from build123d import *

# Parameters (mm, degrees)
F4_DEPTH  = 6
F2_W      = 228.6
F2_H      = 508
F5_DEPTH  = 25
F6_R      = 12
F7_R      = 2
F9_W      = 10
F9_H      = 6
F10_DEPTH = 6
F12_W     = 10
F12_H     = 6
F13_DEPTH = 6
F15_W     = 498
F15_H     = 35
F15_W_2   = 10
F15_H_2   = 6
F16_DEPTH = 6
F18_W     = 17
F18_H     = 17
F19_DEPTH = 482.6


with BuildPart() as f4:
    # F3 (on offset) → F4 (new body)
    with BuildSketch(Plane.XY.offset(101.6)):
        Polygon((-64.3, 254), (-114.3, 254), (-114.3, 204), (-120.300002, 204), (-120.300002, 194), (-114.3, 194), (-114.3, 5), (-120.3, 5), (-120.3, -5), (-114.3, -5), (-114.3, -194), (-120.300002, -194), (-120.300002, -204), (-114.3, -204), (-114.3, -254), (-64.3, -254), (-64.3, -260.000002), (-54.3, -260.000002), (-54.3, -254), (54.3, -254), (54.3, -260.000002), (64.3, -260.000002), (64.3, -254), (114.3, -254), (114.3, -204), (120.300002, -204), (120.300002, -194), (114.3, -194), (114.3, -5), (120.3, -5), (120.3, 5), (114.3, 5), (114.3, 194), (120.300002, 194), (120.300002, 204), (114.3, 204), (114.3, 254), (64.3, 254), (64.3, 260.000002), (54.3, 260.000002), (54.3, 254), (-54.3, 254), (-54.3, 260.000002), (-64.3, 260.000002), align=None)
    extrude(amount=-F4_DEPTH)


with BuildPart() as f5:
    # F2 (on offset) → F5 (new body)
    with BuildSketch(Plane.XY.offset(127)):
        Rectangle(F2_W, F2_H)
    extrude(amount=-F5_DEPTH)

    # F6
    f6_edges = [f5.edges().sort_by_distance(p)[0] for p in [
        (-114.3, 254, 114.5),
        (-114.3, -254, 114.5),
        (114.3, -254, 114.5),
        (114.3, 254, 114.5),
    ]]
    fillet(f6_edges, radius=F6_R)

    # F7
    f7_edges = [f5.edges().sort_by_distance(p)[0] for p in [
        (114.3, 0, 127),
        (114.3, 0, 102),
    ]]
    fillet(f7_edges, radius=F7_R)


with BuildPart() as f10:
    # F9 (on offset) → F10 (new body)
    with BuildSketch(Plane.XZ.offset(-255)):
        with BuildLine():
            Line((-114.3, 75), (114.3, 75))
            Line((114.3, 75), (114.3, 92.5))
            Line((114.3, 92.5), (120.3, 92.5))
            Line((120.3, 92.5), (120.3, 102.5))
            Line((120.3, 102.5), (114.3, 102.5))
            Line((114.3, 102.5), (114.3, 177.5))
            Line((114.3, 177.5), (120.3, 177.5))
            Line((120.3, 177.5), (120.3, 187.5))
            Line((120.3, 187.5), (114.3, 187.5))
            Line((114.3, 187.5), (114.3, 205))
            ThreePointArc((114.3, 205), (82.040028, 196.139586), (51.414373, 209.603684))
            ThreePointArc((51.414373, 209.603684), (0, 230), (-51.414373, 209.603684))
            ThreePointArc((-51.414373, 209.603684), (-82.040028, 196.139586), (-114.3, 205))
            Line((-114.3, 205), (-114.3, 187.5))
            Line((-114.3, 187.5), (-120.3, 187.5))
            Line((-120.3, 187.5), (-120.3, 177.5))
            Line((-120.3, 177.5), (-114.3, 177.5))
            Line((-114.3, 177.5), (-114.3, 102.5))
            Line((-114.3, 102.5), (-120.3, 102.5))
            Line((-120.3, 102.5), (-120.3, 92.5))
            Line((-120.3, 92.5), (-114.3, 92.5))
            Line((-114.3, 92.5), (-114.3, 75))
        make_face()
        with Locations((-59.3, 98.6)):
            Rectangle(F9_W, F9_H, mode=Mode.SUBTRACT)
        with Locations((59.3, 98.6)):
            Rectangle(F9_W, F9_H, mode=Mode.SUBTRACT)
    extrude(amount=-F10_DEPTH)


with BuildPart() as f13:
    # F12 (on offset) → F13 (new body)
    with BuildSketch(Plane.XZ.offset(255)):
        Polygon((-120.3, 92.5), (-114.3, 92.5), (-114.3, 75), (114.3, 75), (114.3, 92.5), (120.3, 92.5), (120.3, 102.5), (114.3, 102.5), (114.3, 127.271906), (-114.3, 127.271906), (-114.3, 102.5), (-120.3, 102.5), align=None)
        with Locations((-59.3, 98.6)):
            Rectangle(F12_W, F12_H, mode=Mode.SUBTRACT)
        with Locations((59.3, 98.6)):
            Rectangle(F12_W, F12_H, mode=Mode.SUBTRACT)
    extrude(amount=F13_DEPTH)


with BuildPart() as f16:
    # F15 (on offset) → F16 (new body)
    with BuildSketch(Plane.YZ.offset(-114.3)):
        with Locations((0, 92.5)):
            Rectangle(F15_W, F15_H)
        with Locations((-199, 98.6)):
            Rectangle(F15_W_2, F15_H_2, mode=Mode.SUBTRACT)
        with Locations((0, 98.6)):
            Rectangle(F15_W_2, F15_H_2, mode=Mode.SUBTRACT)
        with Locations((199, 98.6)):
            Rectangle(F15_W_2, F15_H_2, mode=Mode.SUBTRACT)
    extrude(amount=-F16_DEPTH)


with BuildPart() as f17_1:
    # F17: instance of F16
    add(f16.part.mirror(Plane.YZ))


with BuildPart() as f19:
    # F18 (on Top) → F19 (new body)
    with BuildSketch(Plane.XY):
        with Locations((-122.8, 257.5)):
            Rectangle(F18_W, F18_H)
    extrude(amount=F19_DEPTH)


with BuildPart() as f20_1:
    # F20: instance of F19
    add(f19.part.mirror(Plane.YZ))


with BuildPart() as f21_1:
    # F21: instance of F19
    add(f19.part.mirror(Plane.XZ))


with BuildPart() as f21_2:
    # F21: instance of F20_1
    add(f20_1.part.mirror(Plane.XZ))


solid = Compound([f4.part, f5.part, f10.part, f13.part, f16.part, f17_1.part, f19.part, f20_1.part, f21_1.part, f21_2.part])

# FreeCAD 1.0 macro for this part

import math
import FreeCAD as App
import Part
import Sketcher
from FreeCAD import Vector
Q = App.Units.Quantity


def edges_at(feature, points):
    """Names of the edges that pass closest to the given points."""
    edges = feature.Shape.Edges
    near = lambda p: min(range(len(edges)), key=lambda i: edges[i].distToShape(Part.Vertex(*p))[0])
    return sorted({f"Edge{near(p) + 1}" for p in points})


def add_polygon(sketch, points):
    """Adds a closed chain of lines whose ends are joined by coincident constraints."""
    first, n = sketch.GeometryCount, len(points)
    for a, b in zip(points, points[1:] + points[:1]):
        sketch.addGeometry(Part.LineSegment(App.Vector(*a, 0), App.Vector(*b, 0)), False)
    for i in range(n):
        sketch.addConstraint(Sketcher.Constraint("Coincident", first + i, 2, first + (i + 1) % n, 1))

doc = App.newDocument("Part")
params = doc.addObject("Spreadsheet::Sheet", "Params")
for row, (alias, value) in enumerate([
    ("sketch1_width", "50 mm"),
    ("sketch1_width2", "6 mm"),
    ("sketch1_width3", "10 mm"),
    ("sketch1_height", "189 mm"),
    ("sketch1_width4", "108.6 mm"),
    ("pad1_length", "6 mm"),
    ("sketch2_height", "508 mm"),
    ("sketch2_width", "228.6 mm"),
    ("pad2_length", "25 mm"),
    ("fillet_radius", "12 mm"),
    ("fillet2_radius", "2 mm"),
    ("sketch3_radius", "50 mm"),
    ("sketch3_radius2", "75.000001 mm"),
    ("sketch3_width", "6 mm"),
    ("sketch3_width2", "10 mm"),
    ("sketch3_height", "75 mm"),
    ("pad3_length", "6 mm"),
    ("sketch4_width", "6 mm"),
    ("sketch4_width2", "10 mm"),
    ("sketch4_width3", "228.6 mm"),
    ("sketch4_height", "17.5 mm"),
    ("pad4_length", "6 mm"),
    ("sketch5_width", "498 mm"),
    ("sketch5_width2", "10 mm"),
    ("sketch5_height", "35 mm"),
    ("sketch5_height2", "6 mm"),
    ("pad5_length", "6 mm"),
    ("sketch6_width", "17 mm"),
    ("pad6_length", "482.6 mm"),
], start=1):
    params.set(f"A{row}", alias)
    params.set(f"B{row}", "=" + value)
    params.setAlias(f"B{row}", alias)

body = doc.addObject("PartDesign::Body", "Body")

sketch1 = body.newObject("Sketcher::SketchObject", "Sketch")
sketch1.AttachmentSupport = (doc.getObject("XY_Plane"), [""])
sketch1.MapMode = "FlatFace"
sketch1.AttachmentOffset = App.Placement(Vector(0, 0, 101.6), App.Rotation())
add_polygon(sketch1, [(-64.3, 254), (-114.3, 254), (-114.3, 204), (-120.300002, 204), (-120.300002, 194), (-114.3, 194), (-114.3, 5), (-120.3, 5), (-120.3, -5), (-114.3, -5), (-114.3, -194), (-120.300002, -194), (-120.300002, -204), (-114.3, -204), (-114.3, -254), (-64.3, -254), (-64.3, -260.000002), (-54.3, -260.000002), (-54.3, -254), (54.3, -254), (54.3, -260.000002), (64.3, -260.000002), (64.3, -254), (114.3, -254), (114.3, -204), (120.300002, -204), (120.300002, -194), (114.3, -194), (114.3, -5), (120.3, -5), (120.3, 5), (114.3, 5), (114.3, 194), (120.300002, 194), (120.300002, 204), (114.3, 204), (114.3, 254), (64.3, 254), (64.3, 260.000002), (54.3, 260.000002), (54.3, 254), (-54.3, 254), (-54.3, 260.000002), (-64.3, 260.000002)])
sketch1.addConstraint([
    Sketcher.Constraint("Horizontal", 0),
    Sketcher.Constraint("Vertical", 1),
    Sketcher.Constraint("Horizontal", 2),
    Sketcher.Constraint("Vertical", 3),
    Sketcher.Constraint("Horizontal", 4),
    Sketcher.Constraint("Vertical", 5),
    Sketcher.Constraint("Horizontal", 6),
    Sketcher.Constraint("Vertical", 7),
    Sketcher.Constraint("Horizontal", 8),
    Sketcher.Constraint("Vertical", 9),
    Sketcher.Constraint("Horizontal", 10),
    Sketcher.Constraint("Vertical", 11),
    Sketcher.Constraint("Horizontal", 12),
    Sketcher.Constraint("Vertical", 13),
    Sketcher.Constraint("Horizontal", 14),
    Sketcher.Constraint("Vertical", 15),
    Sketcher.Constraint("Horizontal", 16),
    Sketcher.Constraint("Vertical", 17),
    Sketcher.Constraint("Horizontal", 18),
    Sketcher.Constraint("Vertical", 19),
    Sketcher.Constraint("Horizontal", 20),
    Sketcher.Constraint("Vertical", 21),
    Sketcher.Constraint("Horizontal", 22),
    Sketcher.Constraint("Vertical", 23),
    Sketcher.Constraint("Horizontal", 24),
    Sketcher.Constraint("Vertical", 25),
    Sketcher.Constraint("Horizontal", 26),
    Sketcher.Constraint("Vertical", 27),
    Sketcher.Constraint("Horizontal", 28),
    Sketcher.Constraint("Vertical", 29),
    Sketcher.Constraint("Horizontal", 30),
    Sketcher.Constraint("Vertical", 31),
    Sketcher.Constraint("Horizontal", 32),
    Sketcher.Constraint("Vertical", 33),
    Sketcher.Constraint("Horizontal", 34),
    Sketcher.Constraint("Vertical", 35),
    Sketcher.Constraint("Horizontal", 36),
    Sketcher.Constraint("Vertical", 37),
    Sketcher.Constraint("Horizontal", 38),
    Sketcher.Constraint("Vertical", 39),
    Sketcher.Constraint("Horizontal", 40),
    Sketcher.Constraint("Vertical", 41),
    Sketcher.Constraint("Horizontal", 42),
    Sketcher.Constraint("Vertical", 43),
    Sketcher.Constraint("Symmetric", 0, 2, 22, 2, -1, 1),
    Sketcher.Constraint("Symmetric", 2, 2, 24, 2, -1, 1),
    Sketcher.Constraint("Symmetric", 4, 2, 26, 2, -1, 1),
    Sketcher.Constraint("Symmetric", 6, 2, 28, 2, -1, 1),
    Sketcher.Constraint("Symmetric", 8, 2, 30, 2, -1, 1),
    Sketcher.Constraint("Symmetric", 10, 2, 32, 2, -1, 1),
    Sketcher.Constraint("Symmetric", 12, 2, 34, 2, -1, 1),
    Sketcher.Constraint("Symmetric", 14, 2, 36, 2, -1, 1),
    Sketcher.Constraint("Symmetric", 16, 2, 38, 2, -1, 1),
    Sketcher.Constraint("Symmetric", 18, 2, 40, 2, -1, 1),
    Sketcher.Constraint("Symmetric", 20, 2, 42, 2, -1, 1),
    Sketcher.Constraint("Symmetric", 16, 2, 19, 2, -2),
    Sketcher.Constraint("Symmetric", 14, 2, 21, 2, -2),
    Sketcher.Constraint("Symmetric", 12, 2, 23, 2, -2),
    Sketcher.Constraint("Symmetric", 10, 2, 25, 2, -2),
    Sketcher.Constraint("Symmetric", 8, 2, 27, 2, -2),
    Sketcher.Constraint("Horizontal", 14, 2, 17, 2),
    Sketcher.Constraint("Vertical", 1, 2, 4, 2),
    Sketcher.Constraint("Equal", 36, 1),
    Sketcher.Constraint("Equal", 42, 3),
    Sketcher.Constraint("Equal", 3, 7),
    Sketcher.Constraint("Equal", 34, 15),
    Sketcher.Constraint("Equal", 30, 17),
    Sketcher.Constraint("DistanceX", 0, 2, 0, 1, Q("50 mm")),
    Sketcher.Constraint("DistanceX", 6, 2, 6, 1, Q("6 mm")),
    Sketcher.Constraint("DistanceX", 16, 1, 16, 2, Q("10 mm")),
    Sketcher.Constraint("DistanceY", 5, 2, 5, 1, Q("189 mm")),
    Sketcher.Constraint("DistanceX", 18, 1, 18, 2, Q("108.6 mm")),
])
sketch1.setExpression("Constraints[111]", "Params.sketch1_width")
sketch1.setExpression("Constraints[112]", "Params.sketch1_width2")
sketch1.setExpression("Constraints[113]", "Params.sketch1_width3")
sketch1.setExpression("Constraints[114]", "Params.sketch1_height")
sketch1.setExpression("Constraints[115]", "Params.sketch1_width4")
pad1 = body.newObject("PartDesign::Pad", "Pad")
pad1.Profile = sketch1
pad1.setExpression("Length", "Params.pad1_length")
pad1.Reversed = True
body2 = doc.addObject("PartDesign::Body", "Body001")

sketch2 = body2.newObject("Sketcher::SketchObject", "Sketch001")
sketch2.AttachmentSupport = (doc.getObject("XY_Plane001"), [""])
sketch2.MapMode = "FlatFace"
sketch2.AttachmentOffset = App.Placement(Vector(0, 0, 127), App.Rotation())
add_polygon(sketch2, [(-114.3, 254), (-114.3, -254), (114.3, -254), (114.3, 254)])
sketch2.addConstraint([
    Sketcher.Constraint("Vertical", 0),
    Sketcher.Constraint("Horizontal", 1),
    Sketcher.Constraint("Vertical", 2),
    Sketcher.Constraint("Horizontal", 3),
    Sketcher.Constraint("Symmetric", 0, 2, 2, 2, -1, 1),
    Sketcher.Constraint("DistanceY", 0, 2, 0, 1, Q("508 mm")),
    Sketcher.Constraint("DistanceX", 1, 1, 1, 2, Q("228.6 mm")),
])
sketch2.setExpression("Constraints[9]", "Params.sketch2_height")
sketch2.setExpression("Constraints[10]", "Params.sketch2_width")
pad2 = body2.newObject("PartDesign::Pad", "Pad001")
pad2.Profile = sketch2
pad2.setExpression("Length", "Params.pad2_length")
pad2.Reversed = True
doc.recompute()

fillet = body2.newObject("PartDesign::Fillet", "Fillet")
fillet.Base = (pad2, edges_at(pad2, [
    (-114.3, 254, 114.5),
    (-114.3, -254, 114.5),
    (114.3, -254, 114.5),
    (114.3, 254, 114.5),
]))
fillet.setExpression("Radius", "Params.fillet_radius")
doc.recompute()

fillet2 = body2.newObject("PartDesign::Fillet", "Fillet001")
fillet2.Base = (fillet, edges_at(fillet, [(114.3, 0, 127), (114.3, 0, 102)]))
fillet2.setExpression("Radius", "Params.fillet2_radius")
body3 = doc.addObject("PartDesign::Body", "Body002")

sketch3 = body3.newObject("Sketcher::SketchObject", "Sketch002")
sketch3.AttachmentSupport = (doc.getObject("XZ_Plane002"), [""])
sketch3.MapMode = "FlatFace"
sketch3.AttachmentOffset = App.Placement(Vector(0, 0, -255), App.Rotation())
sketch3.addGeometry(Part.LineSegment(Vector(-114.3, 75, 0), Vector(114.3, 75, 0)), False)
sketch3.addGeometry(Part.LineSegment(Vector(114.3, 75, 0), Vector(114.3, 92.5, 0)), False)
sketch3.addGeometry(Part.LineSegment(Vector(114.3, 92.5, 0), Vector(120.3, 92.5, 0)), False)
sketch3.addGeometry(Part.LineSegment(Vector(120.3, 92.5, 0), Vector(120.3, 102.5, 0)), False)
sketch3.addGeometry(Part.LineSegment(Vector(120.3, 102.5, 0), Vector(114.3, 102.5, 0)), False)
sketch3.addGeometry(Part.LineSegment(Vector(114.3, 102.5, 0), Vector(114.3, 177.5, 0)), False)
sketch3.addGeometry(Part.LineSegment(Vector(114.3, 177.5, 0), Vector(120.3, 177.5, 0)), False)
sketch3.addGeometry(Part.LineSegment(Vector(120.3, 177.5, 0), Vector(120.3, 187.5, 0)), False)
sketch3.addGeometry(Part.LineSegment(Vector(120.3, 187.5, 0), Vector(114.3, 187.5, 0)), False)
sketch3.addGeometry(Part.LineSegment(Vector(114.3, 187.5, 0), Vector(114.3, 205, 0)), False)
sketch3.addGeometry(Part.ArcOfCircle(Part.Circle(Vector(85.690622, 246.00614, 0), Vector(0, 0, 1), 50), math.radians(-133.276907), math.radians(-55.097088)), False)
sketch3.addGeometry(Part.ArcOfCircle(Part.Circle(Vector(0, 154.999999, 0), Vector(0, 0, 1), 75.000001), math.radians(46.723094), math.radians(133.276906)), False)
sketch3.addGeometry(Part.ArcOfCircle(Part.Circle(Vector(-85.690622, 246.00614, 0), Vector(0, 0, 1), 50), math.radians(-124.902912), math.radians(-46.723093)), False)
sketch3.addGeometry(Part.LineSegment(Vector(-114.3, 205, 0), Vector(-114.3, 187.5, 0)), False)
sketch3.addGeometry(Part.LineSegment(Vector(-114.3, 187.5, 0), Vector(-120.3, 187.5, 0)), False)
sketch3.addGeometry(Part.LineSegment(Vector(-120.3, 187.5, 0), Vector(-120.3, 177.5, 0)), False)
sketch3.addGeometry(Part.LineSegment(Vector(-120.3, 177.5, 0), Vector(-114.3, 177.5, 0)), False)
sketch3.addGeometry(Part.LineSegment(Vector(-114.3, 177.5, 0), Vector(-114.3, 102.5, 0)), False)
sketch3.addGeometry(Part.LineSegment(Vector(-114.3, 102.5, 0), Vector(-120.3, 102.5, 0)), False)
sketch3.addGeometry(Part.LineSegment(Vector(-120.3, 102.5, 0), Vector(-120.3, 92.5, 0)), False)
sketch3.addGeometry(Part.LineSegment(Vector(-120.3, 92.5, 0), Vector(-114.3, 92.5, 0)), False)
sketch3.addGeometry(Part.LineSegment(Vector(-114.3, 92.5, 0), Vector(-114.3, 75, 0)), False)
add_polygon(sketch3, [(-54.3, 95.6), (-64.3, 95.6), (-64.3, 101.6), (-54.3, 101.6)])
add_polygon(sketch3, [(64.3, 95.6), (54.3, 95.6), (54.3, 101.6), (64.3, 101.6)])
sketch3.addConstraint([
    Sketcher.Constraint("Coincident", 0, 2, 1, 1),
    Sketcher.Constraint("Coincident", 1, 2, 2, 1),
    Sketcher.Constraint("Coincident", 2, 2, 3, 1),
    Sketcher.Constraint("Coincident", 3, 2, 4, 1),
    Sketcher.Constraint("Coincident", 4, 2, 5, 1),
    Sketcher.Constraint("Coincident", 5, 2, 6, 1),
    Sketcher.Constraint("Coincident", 6, 2, 7, 1),
    Sketcher.Constraint("Coincident", 7, 2, 8, 1),
    Sketcher.Constraint("Coincident", 8, 2, 9, 1),
    Sketcher.Constraint("Coincident", 9, 2, 10, 2),
    Sketcher.Constraint("Tangent", 10, 1, 11, 1),
    Sketcher.Constraint("Tangent", 11, 2, 12, 2),
    Sketcher.Constraint("Coincident", 12, 1, 13, 1),
    Sketcher.Constraint("Coincident", 13, 2, 14, 1),
    Sketcher.Constraint("Coincident", 14, 2, 15, 1),
    Sketcher.Constraint("Coincident", 15, 2, 16, 1),
    Sketcher.Constraint("Coincident", 16, 2, 17, 1),
    Sketcher.Constraint("Coincident", 17, 2, 18, 1),
    Sketcher.Constraint("Coincident", 18, 2, 19, 1),
    Sketcher.Constraint("Coincident", 19, 2, 20, 1),
    Sketcher.Constraint("Coincident", 20, 2, 21, 1),
    Sketcher.Constraint("Coincident", 21, 2, 0, 1),
    Sketcher.Constraint("Horizontal", 0),
    Sketcher.Constraint("Vertical", 1),
    Sketcher.Constraint("Horizontal", 2),
    Sketcher.Constraint("Vertical", 3),
    Sketcher.Constraint("Horizontal", 4),
    Sketcher.Constraint("Vertical", 5),
    Sketcher.Constraint("Horizontal", 6),
    Sketcher.Constraint("Vertical", 7),
    Sketcher.Constraint("Horizontal", 8),
    Sketcher.Constraint("Vertical", 9),
    Sketcher.Constraint("Vertical", 13),
    Sketcher.Constraint("Horizontal", 14),
    Sketcher.Constraint("Vertical", 15),
    Sketcher.Constraint("Horizontal", 16),
    Sketcher.Constraint("Vertical", 17),
    Sketcher.Constraint("Horizontal", 18),
    Sketcher.Constraint("Vertical", 19),
    Sketcher.Constraint("Horizontal", 20),
    Sketcher.Constraint("Vertical", 21),
    Sketcher.Constraint("Horizontal", 22),
    Sketcher.Constraint("Vertical", 23),
    Sketcher.Constraint("Horizontal", 24),
    Sketcher.Constraint("Vertical", 25),
    Sketcher.Constraint("Horizontal", 26),
    Sketcher.Constraint("Vertical", 27),
    Sketcher.Constraint("Horizontal", 28),
    Sketcher.Constraint("Vertical", 29),
    Sketcher.Constraint("Equal", 10, 12),
    Sketcher.Constraint("Symmetric", 10, 3, 12, 3, -2),
    Sketcher.Constraint("Symmetric", 8, 2, 13, 2, -2),
    Sketcher.Constraint("Symmetric", 6, 2, 15, 2, -2),
    Sketcher.Constraint("Symmetric", 4, 2, 17, 2, -2),
    Sketcher.Constraint("Symmetric", 2, 2, 19, 2, -2),
    Sketcher.Constraint("Symmetric", 25, 2, 26, 2, -2),
    Sketcher.Constraint("Symmetric", 23, 2, 28, 2, -2),
    Sketcher.Constraint("Vertical", 1, 2, 4, 2),
    Sketcher.Constraint("Vertical", 3, 2, 6, 2),
    Sketcher.Constraint("Vertical", 5, 2, 8, 2),
    Sketcher.Constraint("Vertical", 17, 2, 20, 2),
    Sketcher.Constraint("Equal", 28, 3),
    Sketcher.Constraint("Equal", 3, 7),
    Sketcher.Constraint("Equal", 1, 9),
    Sketcher.Constraint("Equal", 20, 23),
    Sketcher.Constraint("Radius", 10, Q("50 mm")),
    Sketcher.Constraint("Radius", 11, Q("75.000001 mm")),
    Sketcher.Constraint("DistanceX", 2, 1, 2, 2, Q("6 mm")),
    Sketcher.Constraint("DistanceX", 22, 2, 22, 1, Q("10 mm")),
    Sketcher.Constraint("DistanceY", 5, 1, 5, 2, Q("75 mm")),
    Sketcher.Constraint("DistanceX", 0, 1, 0, 2, Q("228.6 mm")),
    Sketcher.Constraint("DistanceY", 1, 1, 1, 2, Q("17.5 mm")),
    Sketcher.Constraint("DistanceY", -1, 1, 11, 3, Q("154.999999 mm")),
    Sketcher.Constraint("DistanceY", -1, 1, 0, 2, Q("75 mm")),
    Sketcher.Constraint("DistanceX", 20, 2, 22, 2, Q("50 mm")),
    Sketcher.Constraint("DistanceY", -1, 1, 22, 2, Q("95.6 mm")),
])
sketch3.setExpression("Constraints[73]", "Params.sketch3_radius")
sketch3.setExpression("Constraints[74]", "Params.sketch3_radius2")
sketch3.setExpression("Constraints[75]", "Params.sketch3_width")
sketch3.setExpression("Constraints[76]", "Params.sketch3_width2")
sketch3.setExpression("Constraints[77]", "Params.sketch3_height")
pad3 = body3.newObject("PartDesign::Pad", "Pad002")
pad3.Profile = sketch3
pad3.setExpression("Length", "Params.pad3_length")
pad3.Reversed = True
body4 = doc.addObject("PartDesign::Body", "Body003")

sketch4 = body4.newObject("Sketcher::SketchObject", "Sketch003")
sketch4.AttachmentSupport = (doc.getObject("XZ_Plane003"), [""])
sketch4.MapMode = "FlatFace"
sketch4.AttachmentOffset = App.Placement(Vector(0, 0, 255), App.Rotation())
add_polygon(sketch4, [(-120.3, 92.5), (-114.3, 92.5), (-114.3, 75), (114.3, 75), (114.3, 92.5), (120.3, 92.5), (120.3, 102.5), (114.3, 102.5), (114.3, 127.271906), (-114.3, 127.271906), (-114.3, 102.5), (-120.3, 102.5)])
add_polygon(sketch4, [(-54.3, 95.6), (-64.3, 95.6), (-64.3, 101.6), (-54.3, 101.6)])
add_polygon(sketch4, [(64.3, 95.6), (54.3, 95.6), (54.3, 101.6), (64.3, 101.6)])
sketch4.addConstraint([
    Sketcher.Constraint("Horizontal", 0),
    Sketcher.Constraint("Vertical", 1),
    Sketcher.Constraint("Horizontal", 2),
    Sketcher.Constraint("Vertical", 3),
    Sketcher.Constraint("Horizontal", 4),
    Sketcher.Constraint("Vertical", 5),
    Sketcher.Constraint("Horizontal", 6),
    Sketcher.Constraint("Vertical", 7),
    Sketcher.Constraint("Horizontal", 8),
    Sketcher.Constraint("Vertical", 9),
    Sketcher.Constraint("Horizontal", 10),
    Sketcher.Constraint("Vertical", 11),
    Sketcher.Constraint("Horizontal", 12),
    Sketcher.Constraint("Vertical", 13),
    Sketcher.Constraint("Horizontal", 14),
    Sketcher.Constraint("Vertical", 15),
    Sketcher.Constraint("Horizontal", 16),
    Sketcher.Constraint("Vertical", 17),
    Sketcher.Constraint("Horizontal", 18),
    Sketcher.Constraint("Vertical", 19),
    Sketcher.Constraint("Symmetric", 0, 2, 3, 2, -2),
    Sketcher.Constraint("Symmetric", 6, 2, 9, 2, -2),
    Sketcher.Constraint("Symmetric", 15, 2, 16, 2, -2),
    Sketcher.Constraint("Symmetric", 13, 2, 18, 2, -2),
    Sketcher.Constraint("Vertical", 3, 2, 6, 2),
    Sketcher.Constraint("Equal", 0, 4),
    Sketcher.Constraint("Equal", 18, 5),
    Sketcher.Constraint("Equal", 10, 13),
    Sketcher.Constraint("DistanceX", 0, 1, 0, 2, Q("6 mm")),
    Sketcher.Constraint("DistanceX", 12, 2, 12, 1, Q("10 mm")),
    Sketcher.Constraint("DistanceX", 2, 1, 2, 2, Q("228.6 mm")),
    Sketcher.Constraint("DistanceY", 1, 2, 1, 1, Q("17.5 mm")),
    Sketcher.Constraint("DistanceY", -1, 1, 1, 2, Q("75 mm")),
    Sketcher.Constraint("DistanceX", 0, 2, 12, 2, Q("50 mm")),
    Sketcher.Constraint("DistanceY", -1, 1, 12, 2, Q("95.6 mm")),
    Sketcher.Constraint("DistanceY", 7, 1, 7, 2, Q("24.771906 mm")),
])
sketch4.setExpression("Constraints[48]", "Params.sketch4_width")
sketch4.setExpression("Constraints[49]", "Params.sketch4_width2")
sketch4.setExpression("Constraints[50]", "Params.sketch4_width3")
sketch4.setExpression("Constraints[51]", "Params.sketch4_height")
pad4 = body4.newObject("PartDesign::Pad", "Pad003")
pad4.Profile = sketch4
pad4.setExpression("Length", "Params.pad4_length")
body5 = doc.addObject("PartDesign::Body", "Body004")

sketch5 = body5.newObject("Sketcher::SketchObject", "Sketch004")
sketch5.AttachmentSupport = (doc.getObject("YZ_Plane004"), [""])
sketch5.MapMode = "FlatFace"
sketch5.AttachmentOffset = App.Placement(Vector(0, 0, -114.3), App.Rotation())
add_polygon(sketch5, [(-249, 110), (-249, 75), (249, 75), (249, 110)])
add_polygon(sketch5, [(-194, 95.6), (-204, 95.6), (-204, 101.6), (-194, 101.6)])
add_polygon(sketch5, [(5, 95.6), (-5, 95.6), (-5, 101.6), (5, 101.6)])
add_polygon(sketch5, [(204, 95.6), (194, 95.6), (194, 101.6), (204, 101.6)])
sketch5.addConstraint([
    Sketcher.Constraint("Vertical", 0),
    Sketcher.Constraint("Horizontal", 1),
    Sketcher.Constraint("Vertical", 2),
    Sketcher.Constraint("Horizontal", 3),
    Sketcher.Constraint("Horizontal", 4),
    Sketcher.Constraint("Vertical", 5),
    Sketcher.Constraint("Horizontal", 6),
    Sketcher.Constraint("Vertical", 7),
    Sketcher.Constraint("Horizontal", 8),
    Sketcher.Constraint("Vertical", 9),
    Sketcher.Constraint("Horizontal", 10),
    Sketcher.Constraint("Vertical", 11),
    Sketcher.Constraint("Horizontal", 12),
    Sketcher.Constraint("Vertical", 13),
    Sketcher.Constraint("Horizontal", 14),
    Sketcher.Constraint("Vertical", 15),
    Sketcher.Constraint("Symmetric", 7, 2, 12, 2, -2),
    Sketcher.Constraint("Symmetric", 5, 2, 14, 2, -2),
    Sketcher.Constraint("Horizontal", 7, 2, 8, 2),
    Sketcher.Constraint("Horizontal", 6, 2, 9, 2),
    Sketcher.Constraint("Equal", 6, 8),
    Sketcher.Constraint("DistanceX", 1, 1, 1, 2, Q("498 mm")),
    Sketcher.Constraint("DistanceX", 4, 2, 4, 1, Q("10 mm")),
    Sketcher.Constraint("DistanceY", 0, 2, 0, 1, Q("35 mm")),
    Sketcher.Constraint("DistanceY", 5, 1, 5, 2, Q("6 mm")),
    Sketcher.Constraint("DistanceX", 0, 2, -1, 1, Q("249 mm")),
    Sketcher.Constraint("DistanceY", -1, 1, 0, 2, Q("75 mm")),
    Sketcher.Constraint("DistanceX", 4, 2, -1, 1, Q("204 mm")),
    Sketcher.Constraint("DistanceX", 8, 2, -1, 1, Q("5 mm")),
    Sketcher.Constraint("DistanceY", -1, 1, 4, 2, Q("95.6 mm")),
])
sketch5.setExpression("Constraints[37]", "Params.sketch5_width")
sketch5.setExpression("Constraints[38]", "Params.sketch5_width2")
sketch5.setExpression("Constraints[39]", "Params.sketch5_height")
sketch5.setExpression("Constraints[40]", "Params.sketch5_height2")
pad5 = body5.newObject("PartDesign::Pad", "Pad004")
pad5.Profile = sketch5
pad5.setExpression("Length", "Params.pad5_length")
pad5.Reversed = True
body6 = doc.addObject("PartDesign::Body", "Body005")
doc.recompute()

mirroring = doc.addObject("Part::Mirroring", "Mirroring")
mirroring.Source = body5
mirroring.Base = Vector(0, 0, 0)
mirroring.Normal = Vector(1, 0, 0)
body6.BaseFeature = mirroring
doc.recompute()
body7 = doc.addObject("PartDesign::Body", "Body006")

sketch6 = body7.newObject("Sketcher::SketchObject", "Sketch005")
sketch6.AttachmentSupport = (doc.getObject("XY_Plane006"), [""])
sketch6.MapMode = "FlatFace"
add_polygon(sketch6, [(-131.3, 266), (-131.3, 249), (-114.3, 249), (-114.3, 266)])
sketch6.addConstraint([
    Sketcher.Constraint("Vertical", 0),
    Sketcher.Constraint("Horizontal", 1),
    Sketcher.Constraint("Vertical", 2),
    Sketcher.Constraint("Horizontal", 3),
    Sketcher.Constraint("Equal", 3, 0),
    Sketcher.Constraint("DistanceX", 1, 1, 1, 2, Q("17 mm")),
    Sketcher.Constraint("DistanceY", -1, 1, 0, 2, Q("249 mm")),
    Sketcher.Constraint("DistanceX", 0, 2, -1, 1, Q("131.3 mm")),
])
sketch6.setExpression("Constraints[9]", "Params.sketch6_width")
pad6 = body7.newObject("PartDesign::Pad", "Pad005")
pad6.Profile = sketch6
pad6.setExpression("Length", "Params.pad6_length")
body8 = doc.addObject("PartDesign::Body", "Body007")
doc.recompute()

mirroring2 = doc.addObject("Part::Mirroring", "Mirroring001")
mirroring2.Source = body7
mirroring2.Base = Vector(0, 0, 0)
mirroring2.Normal = Vector(1, 0, 0)
body8.BaseFeature = mirroring2
doc.recompute()
body9 = doc.addObject("PartDesign::Body", "Body008")
doc.recompute()

mirroring3 = doc.addObject("Part::Mirroring", "Mirroring002")
mirroring3.Source = body7
mirroring3.Base = Vector(0, 0, 0)
mirroring3.Normal = Vector(0, -1, 0)
body9.BaseFeature = mirroring3
doc.recompute()
body10 = doc.addObject("PartDesign::Body", "Body009")
doc.recompute()

mirroring4 = doc.addObject("Part::Mirroring", "Mirroring003")
mirroring4.Source = body8
mirroring4.Base = Vector(0, 0, 0)
mirroring4.Normal = Vector(0, -1, 0)
body10.BaseFeature = mirroring4
doc.recompute()
mirroring.Visibility = False
mirroring2.Visibility = False
mirroring3.Visibility = False
mirroring4.Visibility = False

doc.recompute()
